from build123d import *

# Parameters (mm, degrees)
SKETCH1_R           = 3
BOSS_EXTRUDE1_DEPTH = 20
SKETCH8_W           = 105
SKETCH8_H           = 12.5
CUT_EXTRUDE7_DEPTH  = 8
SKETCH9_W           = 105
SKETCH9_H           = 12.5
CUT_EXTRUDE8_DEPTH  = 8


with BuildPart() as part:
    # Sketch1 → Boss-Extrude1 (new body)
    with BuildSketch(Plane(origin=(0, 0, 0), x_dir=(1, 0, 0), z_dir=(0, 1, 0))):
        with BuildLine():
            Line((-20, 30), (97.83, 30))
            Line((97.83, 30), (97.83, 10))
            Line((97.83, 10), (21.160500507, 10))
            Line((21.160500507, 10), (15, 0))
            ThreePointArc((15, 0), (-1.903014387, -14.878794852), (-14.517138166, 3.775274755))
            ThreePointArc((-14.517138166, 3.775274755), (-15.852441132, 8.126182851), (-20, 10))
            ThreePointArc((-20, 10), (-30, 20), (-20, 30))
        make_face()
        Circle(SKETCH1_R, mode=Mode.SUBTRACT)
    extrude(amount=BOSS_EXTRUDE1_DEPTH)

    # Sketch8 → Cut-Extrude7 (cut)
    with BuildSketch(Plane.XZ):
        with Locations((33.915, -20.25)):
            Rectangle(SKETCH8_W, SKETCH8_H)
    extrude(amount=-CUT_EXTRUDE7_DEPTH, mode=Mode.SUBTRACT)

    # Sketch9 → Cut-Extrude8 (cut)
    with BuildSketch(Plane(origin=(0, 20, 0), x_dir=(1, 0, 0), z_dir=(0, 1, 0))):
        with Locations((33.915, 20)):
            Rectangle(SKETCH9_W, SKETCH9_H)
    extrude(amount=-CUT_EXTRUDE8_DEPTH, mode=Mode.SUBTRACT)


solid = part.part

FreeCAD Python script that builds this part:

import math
import FreeCAD as App
import Part
import Sketcher

V = App.Vector
Q = App.Units.Quantity


def add_polygon(sketch, points):
    """Adds a closed chain of lines whose ends are joined by coincident constraints."""
    first, n = sketch.GeometryCount, len(points)
    for a, b in zip(points, points[1:] + points[:1]):
        sketch.addGeometry(Part.LineSegment(App.Vector(*a, 0), App.Vector(*b, 0)), False)
    for i in range(n):
        sketch.addConstraint(Sketcher.Constraint("Coincident", first + i, 2, first + (i + 1) % n, 1))

doc = App.newDocument("Part")
body = doc.addObject("PartDesign::Body", "Body")

# Sketch on XZ plane
sketch1 = body.newObject("Sketcher::SketchObject", "Sketch")
sketch1.AttachmentSupport = (doc.getObject("XZ_Plane"), [""])
sketch1.MapMode = "FlatFace"
sketch1.addGeometry(Part.LineSegment(V(97.8, -30, 0), V(-20, -30, 0)), False)
sketch1.addGeometry(Part.ArcOfCircle(Part.Circle(V(-20, -20, 0), V(0, 0, 1), 10), math.radians(90), math.radians(270)), False)
sketch1.addGeometry(Part.ArcOfCircle(Part.Circle(V(-20, -4.5, 0), V(0, 0, 1), 5.5), math.radians(-90), math.radians(7)), False)
sketch1.addGeometry(Part.ArcOfCircle(Part.Circle(V(0, 0, 0), V(0, 0, 1), 15), math.radians(0), math.radians(195)), False)
sketch1.addGeometry(Part.LineSegment(V(15, 0, 0), V(21.2, -10, 0)), False)
sketch1.addGeometry(Part.LineSegment(V(21.2, -10, 0), V(97.8, -10, 0)), False)
sketch1.addGeometry(Part.LineSegment(V(97.8, -10, 0), V(97.8, -30, 0)), False)
sketch1.addGeometry(Part.Circle(V(0, 0, 0), V(0, 0, 1), 3), False)
sketch1.addConstraint(Sketcher.Constraint("Tangent", 0, 2, 1, 2))
sketch1.addConstraint(Sketcher.Constraint("Tangent", 1, 1, 2, 1))
sketch1.addConstraint(Sketcher.Constraint("Coincident", 2, 2, 3, 2))
sketch1.addConstraint(Sketcher.Constraint("Coincident", 3, 1, 4, 1))
sketch1.addConstraint(Sketcher.Constraint("Coincident", 4, 2, 5, 1))
sketch1.addConstraint(Sketcher.Constraint("Coincident", 5, 2, 6, 1))
sketch1.addConstraint(Sketcher.Constraint("Coincident", 6, 2, 0, 1))
sketch1.addConstraint(Sketcher.Constraint("Horizontal", 0))
sketch1.addConstraint(Sketcher.Constraint("Horizontal", 5))
sketch1.addConstraint(Sketcher.Constraint("Vertical", 6))
sketch1.addConstraint(Sketcher.Constraint("Coincident", 3, 3, -1, 1))
sketch1.addConstraint(Sketcher.Constraint("Coincident", 7, 3, -1, 1))
sketch1.addConstraint(Sketcher.Constraint("PointOnObject", 3, 1, -1))
sketch1.addConstraint(Sketcher.Constraint("Horizontal", 1, 1, 4, 2))
sketch1.addConstraint(Sketcher.Constraint("Vertical", 1, 3, 2, 3))
sketch1.addConstraint(Sketcher.Constraint("Diameter", 7, Q("6 mm")))
sketch1.addConstraint(Sketcher.Constraint("Radius", 1, Q("10 mm")))
sketch1.addConstraint(Sketcher.Constraint("Radius", 3, Q("15 mm")))
sketch1.addConstraint(Sketcher.Constraint("DistanceX", 1, 3, -1, 1, Q("20 mm")))
sketch1.addConstraint(Sketcher.Constraint("DistanceY", 1, 3, -1, 1, Q("20 mm")))
sketch1.addConstraint(Sketcher.Constraint("DistanceX", 0, 2, 0, 1, Q("117.83 mm")))
sketch1.addConstraint(Sketcher.Constraint("Radius", 2, Q("5.52707 mm")))
sketch1.addConstraint(Sketcher.Constraint("DistanceX", 5, 1, 5, 2, Q("76.669499 mm")))
pad1 = body.newObject("PartDesign::Pad", "Pad")
pad1.Profile = sketch1
pad1.Length = 20
pad1.Reversed = True

# Sketch on XZ plane
sketch2 = body.newObject("Sketcher::SketchObject", "Sketch001")
sketch2.AttachmentSupport = (doc.getObject("XZ_Plane"), [""])
sketch2.MapMode = "FlatFace"
add_polygon(sketch2, [(-19, -14), (-19, -26), (86, -26), (86, -14)])  # lines 0-3
sketch2.addConstraint(Sketcher.Constraint("Vertical", 0))
sketch2.addConstraint(Sketcher.Constraint("Horizontal", 1))
sketch2.addConstraint(Sketcher.Constraint("Vertical", 2))
sketch2.addConstraint(Sketcher.Constraint("Horizontal", 3))
sketch2.addConstraint(Sketcher.Constraint("DistanceX", 1, 1, 1, 2, Q("105 mm")))
sketch2.addConstraint(Sketcher.Constraint("DistanceY", 0, 2, 0, 1, Q("12.5 mm")))
sketch2.addConstraint(Sketcher.Constraint("DistanceY", 2, 2, -1, 1, Q("14 mm")))
sketch2.addConstraint(Sketcher.Constraint("DistanceX", 0, 2, -1, 1, Q("18.585 mm")))
pocket1 = body.newObject("PartDesign::Pocket", "Pocket")
pocket1.Profile = sketch2
pocket1.Length = 8

# Sketch on XZ plane
sketch3 = body.newObject("Sketcher::SketchObject", "Sketch002")
sketch3.AttachmentSupport = (doc.getObject("XZ_Plane"), [""])
sketch3.MapMode = "FlatFace"
sketch3.AttachmentOffset = App.Placement(V(0, 0, -20), App.Rotation())
add_polygon(sketch3, [(-19, -26), (-19, -14), (86, -14), (86, -26)])  # lines 0-3
sketch3.addConstraint(Sketcher.Constraint("Vertical", 0))
sketch3.addConstraint(Sketcher.Constraint("Horizontal", 1))
sketch3.addConstraint(Sketcher.Constraint("Vertical", 2))
sketch3.addConstraint(Sketcher.Constraint("Horizontal", 3))
sketch3.addConstraint(Sketcher.Constraint("DistanceX", 1, 1, 1, 2, Q("105 mm")))
sketch3.addConstraint(Sketcher.Constraint("DistanceY", 0, 1, 0, 2, Q("12.5 mm")))
sketch3.addConstraint(Sketcher.Constraint("DistanceY", 0, 2, -1, 1, Q("13.75 mm")))
sketch3.addConstraint(Sketcher.Constraint("DistanceX", 0, 2, -1, 1, Q("18.585 mm")))
pocket2 = body.newObject("PartDesign::Pocket", "Pocket001")
pocket2.Profile = sketch3
pocket2.Length = 8
pocket2.Reversed = True

doc.recompute()
